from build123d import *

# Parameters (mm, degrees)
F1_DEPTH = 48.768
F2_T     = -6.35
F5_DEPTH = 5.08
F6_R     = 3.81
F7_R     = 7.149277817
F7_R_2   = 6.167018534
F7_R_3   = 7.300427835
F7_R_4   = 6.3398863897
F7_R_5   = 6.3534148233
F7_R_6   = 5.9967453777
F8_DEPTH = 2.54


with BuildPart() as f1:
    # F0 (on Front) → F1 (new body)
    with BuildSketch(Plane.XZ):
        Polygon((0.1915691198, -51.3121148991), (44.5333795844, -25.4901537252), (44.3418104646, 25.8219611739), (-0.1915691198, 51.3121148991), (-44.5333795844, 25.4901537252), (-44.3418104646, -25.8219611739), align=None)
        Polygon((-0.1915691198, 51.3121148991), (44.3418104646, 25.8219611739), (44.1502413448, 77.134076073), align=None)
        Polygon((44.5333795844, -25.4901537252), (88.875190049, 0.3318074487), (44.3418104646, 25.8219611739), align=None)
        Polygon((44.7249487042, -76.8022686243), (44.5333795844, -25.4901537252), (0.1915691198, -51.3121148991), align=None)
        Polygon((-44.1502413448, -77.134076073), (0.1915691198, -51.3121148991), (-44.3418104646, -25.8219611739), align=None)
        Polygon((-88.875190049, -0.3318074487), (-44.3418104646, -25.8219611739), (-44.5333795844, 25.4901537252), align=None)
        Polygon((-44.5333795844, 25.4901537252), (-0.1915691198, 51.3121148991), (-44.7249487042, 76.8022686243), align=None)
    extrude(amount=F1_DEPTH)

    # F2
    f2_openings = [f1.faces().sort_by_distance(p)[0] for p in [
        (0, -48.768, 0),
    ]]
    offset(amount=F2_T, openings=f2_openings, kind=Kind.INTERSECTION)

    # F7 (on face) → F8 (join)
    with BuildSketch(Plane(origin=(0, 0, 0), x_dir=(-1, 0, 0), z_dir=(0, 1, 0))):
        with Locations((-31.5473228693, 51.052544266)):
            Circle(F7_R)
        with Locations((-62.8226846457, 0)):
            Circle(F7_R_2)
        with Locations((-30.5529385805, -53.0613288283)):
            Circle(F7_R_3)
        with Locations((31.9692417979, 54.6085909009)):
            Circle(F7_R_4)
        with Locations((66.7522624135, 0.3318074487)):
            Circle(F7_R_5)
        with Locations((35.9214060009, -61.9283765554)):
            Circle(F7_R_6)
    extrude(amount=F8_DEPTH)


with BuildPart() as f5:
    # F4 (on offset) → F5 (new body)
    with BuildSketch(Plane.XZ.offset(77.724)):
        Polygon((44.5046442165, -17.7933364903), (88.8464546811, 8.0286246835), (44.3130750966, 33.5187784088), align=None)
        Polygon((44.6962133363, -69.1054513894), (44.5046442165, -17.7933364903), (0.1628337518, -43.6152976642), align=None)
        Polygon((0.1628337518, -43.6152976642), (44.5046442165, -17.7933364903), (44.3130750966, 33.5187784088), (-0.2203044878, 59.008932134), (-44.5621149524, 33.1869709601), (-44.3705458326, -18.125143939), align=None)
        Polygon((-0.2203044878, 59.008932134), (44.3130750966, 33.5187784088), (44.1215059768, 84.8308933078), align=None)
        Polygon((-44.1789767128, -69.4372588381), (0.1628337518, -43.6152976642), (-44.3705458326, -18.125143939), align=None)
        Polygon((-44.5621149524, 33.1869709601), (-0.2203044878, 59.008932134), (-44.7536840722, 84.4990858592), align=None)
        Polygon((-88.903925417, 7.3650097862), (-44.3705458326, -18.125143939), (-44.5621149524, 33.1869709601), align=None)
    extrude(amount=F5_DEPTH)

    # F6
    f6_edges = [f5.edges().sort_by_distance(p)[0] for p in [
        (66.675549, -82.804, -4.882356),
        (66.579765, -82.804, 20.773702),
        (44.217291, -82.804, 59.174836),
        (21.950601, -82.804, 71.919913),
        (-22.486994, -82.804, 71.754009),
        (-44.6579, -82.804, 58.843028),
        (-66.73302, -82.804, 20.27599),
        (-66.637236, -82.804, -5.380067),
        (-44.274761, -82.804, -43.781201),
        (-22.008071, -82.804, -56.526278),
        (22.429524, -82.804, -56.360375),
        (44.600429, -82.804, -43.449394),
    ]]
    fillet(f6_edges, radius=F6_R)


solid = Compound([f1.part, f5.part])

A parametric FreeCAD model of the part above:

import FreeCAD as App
import Part
import Sketcher

V = App.Vector
Q = App.Units.Quantity


def edges_at(feature, points):
    """Names of the edges that pass closest to the given points."""
    edges = feature.Shape.Edges
    near = lambda p: min(range(len(edges)), key=lambda i: edges[i].distToShape(Part.Vertex(*p))[0])
    return sorted({f"Edge{near(p) + 1}" for p in points})


def faces_at(feature, points):
    """Names of the faces that lie closest to the given points."""
    faces = feature.Shape.Faces
    near = lambda p: min(range(len(faces)), key=lambda i: faces[i].distToShape(Part.Vertex(*p))[0])
    return sorted({f"Face{near(p) + 1}" for p in points})

doc = App.newDocument("Part")
body = doc.addObject("PartDesign::Body", "Body")

# Sketch on XZ plane
sketch1 = body.newObject("Sketcher::SketchObject", "Sketch")
sketch1.AttachmentSupport = (doc.getObject("XZ_Plane"), [""])
sketch1.MapMode = "FlatFace"
sketch1.addGeometry([
    Part.LineSegment(V(45, -25, 0), V(89, 0, 0)),  # 0
    Part.LineSegment(V(89, 0, 0), V(44, 26, 0)),  # 1
    Part.LineSegment(V(44, 26, 0), V(44, 77, 0)),  # 2
    Part.LineSegment(V(44, 77, 0), V(0, 51, 0)),  # 3
    Part.LineSegment(V(0, 51, 0), V(-45, 77, 0)),  # 4
    Part.LineSegment(V(-45, 77, 0), V(-45, 25, 0)),  # 5
    Part.LineSegment(V(-45, 25, 0), V(-89, 0, 0)),  # 6
    Part.LineSegment(V(-89, 0, 0), V(-44, -26, 0)),  # 7
    Part.LineSegment(V(-44, -26, 0), V(-44, -77, 0)),  # 8
    Part.LineSegment(V(-44, -77, 0), V(0, -51, 0)),  # 9
    Part.LineSegment(V(0, -51, 0), V(45, -77, 0)),  # 10
    Part.LineSegment(V(45, -77, 0), V(45, -25, 0)),  # 11
], False)
sketch1.addConstraint([
    Sketcher.Constraint("Coincident", 0, 2, 1, 1),
    Sketcher.Constraint("Coincident", 1, 2, 2, 1),
    Sketcher.Constraint("Coincident", 2, 2, 3, 1),
    Sketcher.Constraint("Coincident", 3, 2, 4, 1),
    Sketcher.Constraint("Coincident", 4, 2, 5, 1),
    Sketcher.Constraint("Coincident", 5, 2, 6, 1),
    Sketcher.Constraint("Coincident", 6, 2, 7, 1),
    Sketcher.Constraint("Coincident", 7, 2, 8, 1),
    Sketcher.Constraint("Coincident", 8, 2, 9, 1),
    Sketcher.Constraint("Coincident", 9, 2, 10, 1),
    Sketcher.Constraint("Coincident", 10, 2, 11, 1),
    Sketcher.Constraint("Coincident", 11, 2, 0, 1),
    Sketcher.Constraint("Symmetric", 0, 2, 6, 2, -1, 1),
    Sketcher.Constraint("Symmetric", 1, 2, 7, 2, -1, 1),
    Sketcher.Constraint("Symmetric", 2, 2, 8, 2, -1, 1),
    Sketcher.Constraint("Symmetric", 3, 2, 9, 2, -1, 1),
    Sketcher.Constraint("Symmetric", 4, 2, 10, 2, -1, 1),
    Sketcher.Constraint("Symmetric", 5, 2, 11, 2, -1, 1),
    Sketcher.Constraint("Parallel", 0, 3),
    Sketcher.Constraint("Parallel", 1, 4),
    Sketcher.Constraint("Parallel", 2, 5),
    Sketcher.Constraint("Equal", 0, 1),
    Sketcher.Constraint("Equal", 1, 2),
    Sketcher.Constraint("Equal", 2, 3),
    Sketcher.Constraint("Equal", 3, 4),
    Sketcher.Constraint("Equal", 4, 5),
    Sketcher.Constraint("DistanceX", 6, 2, 1, 2, Q("133.217001 mm")),
    Sketcher.Constraint("DistanceX", -1, 1, 0, 2, Q("88.87519 mm")),
    Sketcher.Constraint("DistanceY", -1, 1, 1, 2, Q("25.821961 mm")),
    Sketcher.Constraint("DistanceX", -1, 1, 2, 2, Q("44.150241 mm")),
])
pad1 = body.newObject("PartDesign::Pad", "Pad")
pad1.Profile = sketch1
pad1.Length = Q("1.92 in")
doc.recompute()

thickness = body.newObject("PartDesign::Thickness", "Thickness")
thickness.Base = (pad1, faces_at(pad1, [(0, -48.768, 0)]))
thickness.Value = Q("0.25 in")
thickness.Reversed = True
thickness.Join = "Intersection"

# Sketch on XZ plane
sketch2 = body.newObject("Sketcher::SketchObject", "Sketch001")
sketch2.AttachmentSupport = (doc.getObject("XZ_Plane"), [""])
sketch2.MapMode = "FlatFace"
sketch2.addGeometry([
    Part.Circle(V(32, 51, 0), V(0, 0, 1), 7),  # 0
    Part.Circle(V(63, 0, 0), V(0, 0, 1), 6),  # 1
    Part.Circle(V(31, -53, 0), V(0, 0, 1), 7),  # 2
    Part.Circle(V(-32, 55, 0), V(0, 0, 1), 6),  # 3
    Part.Circle(V(-67, 0, 0), V(0, 0, 1), 6),  # 4
    Part.Circle(V(-36, -62, 0), V(0, 0, 1), 6),  # 5
], False)
sketch2.addConstraint([
    Sketcher.Constraint("PointOnObject", 1, 3, -1),
    Sketcher.Constraint("Diameter", 4, Q("12.70683 mm")),
    Sketcher.Constraint("Diameter", 5, Q("11.993491 mm")),
    Sketcher.Constraint("Diameter", 0, Q("14.298556 mm")),
    Sketcher.Constraint("Diameter", 1, Q("12.334037 mm")),
    Sketcher.Constraint("Diameter", 2, Q("14.600856 mm")),
    Sketcher.Constraint("Diameter", 3, Q("12.679773 mm")),
    Sketcher.Constraint("DistanceX", 5, 3, 2, 3, Q("2.6171002 in")),
    Sketcher.Constraint("DistanceX", 4, 3, 2, 3, Q("97.305201 mm")),
    Sketcher.Constraint("DistanceX", -1, 1, 2, 3, Q("30.552939 mm")),
    Sketcher.Constraint("DistanceY", 2, 3, -1, 1, Q("53.061329 mm")),
    Sketcher.Constraint("DistanceX", 3, 3, -1, 1, Q("31.969242 mm")),
    Sketcher.Constraint("DistanceY", -1, 1, 3, 3, Q("54.608591 mm")),
    Sketcher.Constraint("DistanceX", 0, 3, 1, 3, Q("31.275362 mm")),
    Sketcher.Constraint("DistanceX", 5, 3, 1, 3, Q("98.744091 mm")),
    Sketcher.Constraint("DistanceY", 5, 3, 0, 3, Q("112.980921 mm")),
    Sketcher.Constraint("DistanceY", -1, 1, 0, 3, Q("51.052544 mm")),
    Sketcher.Constraint("DistanceY", -1, 1, 4, 3, Q("0.331807 mm")),
])
pad2 = body.newObject("PartDesign::Pad", "Pad001")
pad2.Profile = sketch2
pad2.Length = Q("0.1 in")
pad2.Reversed = True
body2 = doc.addObject("PartDesign::Body", "Body001")

# Sketch on XZ plane
sketch3 = body2.newObject("Sketcher::SketchObject", "Sketch002")
sketch3.AttachmentSupport = (doc.getObject("XZ_Plane001"), [""])
sketch3.MapMode = "FlatFace"
sketch3.AttachmentOffset = App.Placement(V(0, 0, 3.06 * 25.4), App.Rotation())
sketch3.addGeometry([
    Part.LineSegment(V(45, -18, 0), V(89, 8, 0)),  # 0
    Part.LineSegment(V(89, 8, 0), V(44, 34, 0)),  # 1
    Part.LineSegment(V(44, 34, 0), V(44, 85, 0)),  # 2
    Part.LineSegment(V(44, 85, 0), V(0, 59, 0)),  # 3
    Part.LineSegment(V(0, 59, 0), V(-45, 84, 0)),  # 4
    Part.LineSegment(V(-45, 84, 0), V(-45, 33, 0)),  # 5
    Part.LineSegment(V(-45, 33, 0), V(-89, 7, 0)),  # 6
    Part.LineSegment(V(-89, 7, 0), V(-44, -18, 0)),  # 7
    Part.LineSegment(V(-44, -18, 0), V(-44, -69, 0)),  # 8
    Part.LineSegment(V(-44, -69, 0), V(0, -44, 0)),  # 9
    Part.LineSegment(V(0, -44, 0), V(45, -69, 0)),  # 10
    Part.LineSegment(V(45, -69, 0), V(45, -18, 0)),  # 11
], False)
sketch3.addConstraint([
    Sketcher.Constraint("Coincident", 0, 2, 1, 1),
    Sketcher.Constraint("Coincident", 1, 2, 2, 1),
    Sketcher.Constraint("Coincident", 2, 2, 3, 1),
    Sketcher.Constraint("Coincident", 3, 2, 4, 1),
    Sketcher.Constraint("Coincident", 4, 2, 5, 1),
    Sketcher.Constraint("Coincident", 5, 2, 6, 1),
    Sketcher.Constraint("Coincident", 6, 2, 7, 1),
    Sketcher.Constraint("Coincident", 7, 2, 8, 1),
    Sketcher.Constraint("Coincident", 8, 2, 9, 1),
    Sketcher.Constraint("Coincident", 9, 2, 10, 1),
    Sketcher.Constraint("Coincident", 10, 2, 11, 1),
    Sketcher.Constraint("Coincident", 11, 2, 0, 1),
    Sketcher.Constraint("Parallel", 0, 3),
    Sketcher.Constraint("Parallel", 1, 4),
    Sketcher.Constraint("Parallel", 2, 5),
    Sketcher.Constraint("Parallel", 3, 6),
    Sketcher.Constraint("Parallel", 4, 7),
    Sketcher.Constraint("Parallel", 5, 8),
    Sketcher.Constraint("Parallel", 6, 9),
    Sketcher.Constraint("Parallel", 7, 10),
    Sketcher.Constraint("Parallel", 8, 11),
    Sketcher.Constraint("Equal", 0, 1),
    Sketcher.Constraint("Equal", 1, 2),
    Sketcher.Constraint("Equal", 2, 3),
    Sketcher.Constraint("Equal", 3, 4),
    Sketcher.Constraint("Equal", 4, 5),
    Sketcher.Constraint("Equal", 5, 6),
    Sketcher.Constraint("Equal", 6, 7),
    Sketcher.Constraint("Equal", 7, 8),
    Sketcher.Constraint("Equal", 8, 9),
    Sketcher.Constraint("DistanceX", 6, 2, 1, 2, Q("133.217001 mm")),
    Sketcher.Constraint("DistanceY", -1, 1, 1, 2, Q("33.518778 mm")),
    Sketcher.Constraint("DistanceY", -1, 1, 5, 2, Q("33.186971 mm")),
    Sketcher.Constraint("DistanceY", -1, 1, 6, 2, Q("7.36501 mm")),
    Sketcher.Constraint("DistanceX", 2, 2, 1, 2, Q("0.191569 mm")),
    Sketcher.Constraint("DistanceX", -1, 1, 0, 2, Q("88.846455 mm")),
])
pad3 = body2.newObject("PartDesign::Pad", "Pad002")
pad3.Profile = sketch3
pad3.Length = Q("0.2 in")
doc.recompute()

fillet = body2.newObject("PartDesign::Fillet", "Fillet")
fillet.Base = (pad3, edges_at(pad3, [
    (66.676, -82.804, -4.882),
    (66.58, -82.804, 20.774),
    (44.217, -82.804, 59.175),
    (21.951, -82.804, 71.92),
    (-22.487, -82.804, 71.754),
    (-44.658, -82.804, 58.843),
    (-66.733, -82.804, 20.276),
    (-66.637, -82.804, -5.38),
    (-44.275, -82.804, -43.781),
    (-22.008, -82.804, -56.526),
    (22.43, -82.804, -56.36),
    (44.6, -82.804, -43.449),
]))
fillet.Radius = Q("0.15 in")

doc.recompute()
